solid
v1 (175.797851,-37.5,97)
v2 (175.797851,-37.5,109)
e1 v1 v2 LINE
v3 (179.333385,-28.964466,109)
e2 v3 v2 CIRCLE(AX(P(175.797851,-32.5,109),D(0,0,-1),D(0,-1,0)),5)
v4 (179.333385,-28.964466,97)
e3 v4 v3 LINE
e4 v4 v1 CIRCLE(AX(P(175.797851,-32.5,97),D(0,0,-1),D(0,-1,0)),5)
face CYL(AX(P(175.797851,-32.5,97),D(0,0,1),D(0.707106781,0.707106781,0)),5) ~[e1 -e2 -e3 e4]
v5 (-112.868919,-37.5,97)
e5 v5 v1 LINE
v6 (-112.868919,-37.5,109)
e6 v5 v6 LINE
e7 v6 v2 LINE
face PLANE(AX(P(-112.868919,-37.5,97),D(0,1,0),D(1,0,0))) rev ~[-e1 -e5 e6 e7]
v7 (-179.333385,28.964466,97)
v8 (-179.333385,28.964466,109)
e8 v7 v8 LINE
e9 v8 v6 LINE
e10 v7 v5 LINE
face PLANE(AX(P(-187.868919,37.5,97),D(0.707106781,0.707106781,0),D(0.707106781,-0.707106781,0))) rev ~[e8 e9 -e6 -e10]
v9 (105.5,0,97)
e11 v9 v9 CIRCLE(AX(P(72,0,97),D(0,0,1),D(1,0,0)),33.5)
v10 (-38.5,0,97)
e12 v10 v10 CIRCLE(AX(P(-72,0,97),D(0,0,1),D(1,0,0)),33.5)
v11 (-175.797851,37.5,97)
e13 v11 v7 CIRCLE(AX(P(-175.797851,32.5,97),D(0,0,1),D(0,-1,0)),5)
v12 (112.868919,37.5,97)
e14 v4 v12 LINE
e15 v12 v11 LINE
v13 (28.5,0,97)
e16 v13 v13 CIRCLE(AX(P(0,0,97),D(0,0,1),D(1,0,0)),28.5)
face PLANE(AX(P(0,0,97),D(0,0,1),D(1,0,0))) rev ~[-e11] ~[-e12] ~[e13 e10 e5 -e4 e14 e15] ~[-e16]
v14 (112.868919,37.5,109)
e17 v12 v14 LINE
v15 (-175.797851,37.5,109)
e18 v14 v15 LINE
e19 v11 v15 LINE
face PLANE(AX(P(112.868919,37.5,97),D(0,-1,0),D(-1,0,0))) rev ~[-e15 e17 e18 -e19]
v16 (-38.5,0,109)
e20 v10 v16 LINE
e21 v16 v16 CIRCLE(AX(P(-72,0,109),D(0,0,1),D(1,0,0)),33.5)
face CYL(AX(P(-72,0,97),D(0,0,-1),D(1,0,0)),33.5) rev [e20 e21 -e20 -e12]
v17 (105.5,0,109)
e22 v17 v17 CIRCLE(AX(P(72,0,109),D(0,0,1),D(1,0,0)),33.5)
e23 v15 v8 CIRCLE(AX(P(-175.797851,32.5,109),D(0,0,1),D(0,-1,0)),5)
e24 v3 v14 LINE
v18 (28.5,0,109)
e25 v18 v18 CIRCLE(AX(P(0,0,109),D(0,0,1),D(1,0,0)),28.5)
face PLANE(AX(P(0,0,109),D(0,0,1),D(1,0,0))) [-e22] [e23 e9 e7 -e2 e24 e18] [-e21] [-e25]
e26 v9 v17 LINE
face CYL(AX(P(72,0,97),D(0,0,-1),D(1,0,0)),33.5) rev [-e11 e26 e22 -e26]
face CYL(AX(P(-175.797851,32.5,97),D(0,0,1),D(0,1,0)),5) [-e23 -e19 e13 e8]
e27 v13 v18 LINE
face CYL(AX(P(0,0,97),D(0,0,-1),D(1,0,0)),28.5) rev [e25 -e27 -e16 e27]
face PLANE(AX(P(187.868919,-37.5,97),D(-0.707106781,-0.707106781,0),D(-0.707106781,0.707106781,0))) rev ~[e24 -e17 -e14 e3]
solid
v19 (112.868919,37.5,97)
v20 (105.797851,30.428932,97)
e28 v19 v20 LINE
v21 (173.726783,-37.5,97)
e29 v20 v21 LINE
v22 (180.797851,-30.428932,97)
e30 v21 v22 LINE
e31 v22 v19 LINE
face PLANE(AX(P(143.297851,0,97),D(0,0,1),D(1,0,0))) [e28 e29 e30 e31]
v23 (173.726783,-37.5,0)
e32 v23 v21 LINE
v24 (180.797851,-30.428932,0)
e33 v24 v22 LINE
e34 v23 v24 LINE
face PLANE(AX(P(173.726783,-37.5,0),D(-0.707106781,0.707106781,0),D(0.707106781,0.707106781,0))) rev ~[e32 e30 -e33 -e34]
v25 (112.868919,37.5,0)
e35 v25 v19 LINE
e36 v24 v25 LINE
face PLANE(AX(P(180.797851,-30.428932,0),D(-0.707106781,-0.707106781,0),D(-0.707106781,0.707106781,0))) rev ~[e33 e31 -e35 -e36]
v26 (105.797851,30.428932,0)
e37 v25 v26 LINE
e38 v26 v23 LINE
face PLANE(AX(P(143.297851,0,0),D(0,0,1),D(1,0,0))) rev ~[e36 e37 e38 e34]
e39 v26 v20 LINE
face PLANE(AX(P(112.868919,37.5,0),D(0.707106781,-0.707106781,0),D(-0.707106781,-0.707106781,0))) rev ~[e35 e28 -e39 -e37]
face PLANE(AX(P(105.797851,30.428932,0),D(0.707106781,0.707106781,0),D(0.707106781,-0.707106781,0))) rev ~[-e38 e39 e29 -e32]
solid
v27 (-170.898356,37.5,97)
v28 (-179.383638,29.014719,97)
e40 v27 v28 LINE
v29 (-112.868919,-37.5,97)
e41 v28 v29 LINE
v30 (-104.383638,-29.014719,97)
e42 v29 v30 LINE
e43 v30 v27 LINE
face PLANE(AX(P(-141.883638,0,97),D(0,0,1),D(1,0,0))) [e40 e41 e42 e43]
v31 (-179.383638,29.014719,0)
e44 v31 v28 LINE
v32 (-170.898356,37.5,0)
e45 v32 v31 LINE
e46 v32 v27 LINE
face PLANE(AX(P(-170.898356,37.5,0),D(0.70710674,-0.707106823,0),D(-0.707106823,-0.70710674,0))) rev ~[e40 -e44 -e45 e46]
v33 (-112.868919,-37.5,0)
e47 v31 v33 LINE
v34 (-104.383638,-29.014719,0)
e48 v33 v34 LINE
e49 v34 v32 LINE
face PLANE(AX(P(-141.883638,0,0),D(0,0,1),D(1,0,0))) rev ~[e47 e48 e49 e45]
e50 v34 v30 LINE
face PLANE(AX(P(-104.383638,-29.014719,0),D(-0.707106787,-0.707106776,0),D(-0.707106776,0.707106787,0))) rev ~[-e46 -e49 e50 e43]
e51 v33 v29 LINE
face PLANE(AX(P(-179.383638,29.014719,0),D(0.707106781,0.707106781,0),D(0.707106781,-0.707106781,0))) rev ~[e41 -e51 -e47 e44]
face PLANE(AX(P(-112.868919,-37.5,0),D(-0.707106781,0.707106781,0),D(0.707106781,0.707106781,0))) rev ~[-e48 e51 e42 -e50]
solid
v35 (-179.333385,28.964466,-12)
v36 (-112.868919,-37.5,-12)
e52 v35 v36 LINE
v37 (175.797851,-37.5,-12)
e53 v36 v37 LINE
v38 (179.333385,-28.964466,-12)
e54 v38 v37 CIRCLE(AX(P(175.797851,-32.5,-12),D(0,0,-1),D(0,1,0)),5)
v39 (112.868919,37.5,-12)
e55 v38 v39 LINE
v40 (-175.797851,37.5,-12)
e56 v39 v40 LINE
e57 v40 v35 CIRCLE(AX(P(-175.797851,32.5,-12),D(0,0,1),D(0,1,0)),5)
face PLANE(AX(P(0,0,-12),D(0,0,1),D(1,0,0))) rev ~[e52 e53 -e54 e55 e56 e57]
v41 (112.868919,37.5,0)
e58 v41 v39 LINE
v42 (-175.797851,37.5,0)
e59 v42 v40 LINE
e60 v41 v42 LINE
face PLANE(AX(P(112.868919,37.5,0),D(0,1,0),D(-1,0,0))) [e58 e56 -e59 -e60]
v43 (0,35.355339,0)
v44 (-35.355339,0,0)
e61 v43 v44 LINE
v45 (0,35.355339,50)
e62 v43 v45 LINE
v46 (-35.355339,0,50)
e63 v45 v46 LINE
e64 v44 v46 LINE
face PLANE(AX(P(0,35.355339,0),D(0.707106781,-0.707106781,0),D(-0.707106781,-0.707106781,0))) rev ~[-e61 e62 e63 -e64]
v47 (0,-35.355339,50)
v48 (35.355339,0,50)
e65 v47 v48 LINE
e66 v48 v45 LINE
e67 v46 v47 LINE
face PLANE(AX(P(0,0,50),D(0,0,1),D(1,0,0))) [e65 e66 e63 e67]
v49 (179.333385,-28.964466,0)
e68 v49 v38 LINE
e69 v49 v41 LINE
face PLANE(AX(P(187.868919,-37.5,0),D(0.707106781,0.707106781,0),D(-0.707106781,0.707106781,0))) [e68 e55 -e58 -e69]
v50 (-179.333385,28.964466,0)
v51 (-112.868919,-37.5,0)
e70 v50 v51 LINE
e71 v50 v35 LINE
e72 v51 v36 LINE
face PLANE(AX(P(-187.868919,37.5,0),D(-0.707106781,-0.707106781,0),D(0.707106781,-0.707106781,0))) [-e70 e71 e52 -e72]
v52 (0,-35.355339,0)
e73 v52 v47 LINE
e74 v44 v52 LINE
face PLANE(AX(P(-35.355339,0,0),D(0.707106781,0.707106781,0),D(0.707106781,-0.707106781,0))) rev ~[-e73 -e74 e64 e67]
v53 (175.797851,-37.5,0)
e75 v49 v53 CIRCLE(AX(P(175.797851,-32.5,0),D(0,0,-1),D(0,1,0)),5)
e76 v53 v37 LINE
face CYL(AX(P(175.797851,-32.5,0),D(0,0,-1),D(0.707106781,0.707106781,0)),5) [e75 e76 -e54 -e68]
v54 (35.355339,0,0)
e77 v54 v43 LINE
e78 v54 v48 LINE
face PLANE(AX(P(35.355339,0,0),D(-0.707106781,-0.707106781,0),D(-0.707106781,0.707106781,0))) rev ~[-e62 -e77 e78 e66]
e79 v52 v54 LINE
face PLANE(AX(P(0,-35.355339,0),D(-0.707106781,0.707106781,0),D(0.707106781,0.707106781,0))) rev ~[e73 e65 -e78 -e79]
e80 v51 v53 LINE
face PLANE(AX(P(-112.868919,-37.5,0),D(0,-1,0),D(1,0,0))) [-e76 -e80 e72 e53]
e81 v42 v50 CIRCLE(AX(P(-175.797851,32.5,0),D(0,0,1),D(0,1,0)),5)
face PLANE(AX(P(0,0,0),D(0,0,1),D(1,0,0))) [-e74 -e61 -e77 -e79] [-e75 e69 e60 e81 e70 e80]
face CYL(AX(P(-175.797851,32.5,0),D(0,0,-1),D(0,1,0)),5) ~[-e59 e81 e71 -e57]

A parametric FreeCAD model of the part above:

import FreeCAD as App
import Part
import Sketcher
from FreeCAD import Vector
Q = App.Units.Quantity


def edges_at(feature, points):
    """Names of the edges that pass closest to the given points."""
    edges = feature.Shape.Edges
    near = lambda p: min(range(len(edges)), key=lambda i: edges[i].distToShape(Part.Vertex(*p))[0])
    return sorted({f"Edge{near(p) + 1}" for p in points})


def add_polygon(sketch, points):
    """Adds a closed chain of lines whose ends are joined by coincident constraints."""
    first, n = sketch.GeometryCount, len(points)
    for a, b in zip(points, points[1:] + points[:1]):
        sketch.addGeometry(Part.LineSegment(App.Vector(*a, 0), App.Vector(*b, 0)), False)
    for i in range(n):
        sketch.addConstraint(Sketcher.Constraint("Coincident", first + i, 2, first + (i + 1) % n, 1))

doc = App.newDocument("Part")
body = doc.addObject("PartDesign::Body", "Body")

# Sketch on XY plane
sketch1 = body.newObject("Sketcher::SketchObject", "Sketch")
sketch1.AttachmentSupport = (doc.getObject("XY_Plane"), [""])
sketch1.MapMode = "FlatFace"
add_polygon(sketch1, [(188, -38), (113, 38), (-188, 38), (-113, -38)])  # lines 0-3
sketch1.addConstraint([
    Sketcher.Constraint("Horizontal", 1),
    Sketcher.Constraint("Horizontal", 3),
    Sketcher.Constraint("Symmetric", 0, 2, 2, 2, -1, 1),
    Sketcher.Constraint("Parallel", 0, 2),
    Sketcher.Constraint("Angle", 0, Q("135 deg")),
    Sketcher.Constraint("DistanceX", 1, 2, 2, 2, Q("75 mm")),
    Sketcher.Constraint("DistanceX", 1, 2, 1, 1, Q("300.737838 mm")),
])
pad1 = body.newObject("PartDesign::Pad", "Pad")
pad1.Profile = sketch1
pad1.Length = 12
pad1.Reversed = True

# Sketch on XY plane
sketch2 = body.newObject("Sketcher::SketchObject", "Sketch001")
sketch2.AttachmentSupport = (doc.getObject("XY_Plane"), [""])
sketch2.MapMode = "FlatFace"
add_polygon(sketch2, [(0, -35), (35, 0), (0, 35), (-35, 0)])  # lines 0-3
sketch2.addConstraint([
    Sketcher.Constraint("Symmetric", 0, 2, 2, 2, -1, 1),
    Sketcher.Constraint("Symmetric", 1, 2, 3, 2, -1, 1),
    Sketcher.Constraint("PointOnObject", 0, 2, -1),
    Sketcher.Constraint("PointOnObject", 1, 2, -2),
    Sketcher.Constraint("Perpendicular", 0, 1),
    Sketcher.Constraint("Distance", 0, Q("50 mm")),
])
pad2 = body.newObject("PartDesign::Pad", "Pad001")
pad2.Profile = sketch2
pad2.Length = 50
doc.recompute()

fillet = body.newObject("PartDesign::Fillet", "Fillet")
fillet.Base = (pad2, edges_at(pad2, [(-187.869, 37.5, -6), (187.869, -37.5, -6)]))
fillet.Radius = 5
body2 = doc.addObject("PartDesign::Body", "Body001")

# Sketch on XY plane
sketch3 = body2.newObject("Sketcher::SketchObject", "Sketch002")
sketch3.AttachmentSupport = (doc.getObject("XY_Plane001"), [""])
sketch3.MapMode = "FlatFace"
sketch3.AttachmentOffset = App.Placement(Vector(0, 0, 97), App.Rotation())
add_polygon(sketch3, [(188, -38), (113, 38), (-188, 38), (-113, -38)])  # lines 0-3
sketch3.addGeometry(Part.Circle(Vector(-72, 0, 0), Vector(0, 0, 1), 34), False)  # 4
sketch3.addGeometry(Part.Circle(Vector(0, 0, 0), Vector(0, 0, 1), 28), False)  # 5
sketch3.addGeometry(Part.Circle(Vector(72, 0, 0), Vector(0, 0, 1), 34), False)  # 6
sketch3.addConstraint([
    Sketcher.Constraint("Horizontal", 1),
    Sketcher.Constraint("Horizontal", 3),
    Sketcher.Constraint("Coincident", 5, 3, -1, 1),
    Sketcher.Constraint("Equal", 4, 6),
    Sketcher.Constraint("Symmetric", 4, 3, 6, 3, -1, 1),
    Sketcher.Constraint("Symmetric", 0, 2, 2, 2, -1, 1),
    Sketcher.Constraint("PointOnObject", 4, 3, -1),
    Sketcher.Constraint("Parallel", 0, 2),
    Sketcher.Constraint("Diameter", 4, Q("67 mm")),
    Sketcher.Constraint("Diameter", 5, Q("57 mm")),
    Sketcher.Constraint("Angle", 0, Q("135 deg")),
    Sketcher.Constraint("DistanceX", 4, 3, -1, 1, Q("72 mm")),
    Sketcher.Constraint("DistanceX", 1, 2, 2, 2, Q("75 mm")),
    Sketcher.Constraint("DistanceX", 1, 2, 1, 1, Q("300.737838 mm")),
])
pad3 = body2.newObject("PartDesign::Pad", "Pad002")
pad3.Profile = sketch3
pad3.Length = 12
doc.recompute()

fillet2 = body2.newObject("PartDesign::Fillet", "Fillet001")
fillet2.Base = (pad3, edges_at(pad3, [(-187.869, 37.5, 103), (187.869, -37.5, 103)]))
fillet2.Radius = 5
body3 = doc.addObject("PartDesign::Body", "Body002")
body3.AllowCompound = True

# Sketch on XY plane
sketch4 = body3.newObject("Sketcher::SketchObject", "Sketch003")
sketch4.AttachmentSupport = (doc.getObject("XY_Plane002"), [""])
sketch4.MapMode = "FlatFace"
add_polygon(sketch4, [(-179, 29), (-113, -38), (-104, -29), (-171, 38)])  # lines 0-3
add_polygon(sketch4, [(106, 30), (174, -38), (181, -30), (113, 38)])  # lines 4-7
sketch4.addConstraint([
    Sketcher.Constraint("Symmetric", 0, 2, 6, 2, -1, 1),
    Sketcher.Constraint("Perpendicular", 0, 1),
    Sketcher.Constraint("Perpendicular", 1, 2),
    Sketcher.Constraint("Perpendicular", 2, 3),
    Sketcher.Constraint("Perpendicular", 3, 4),
    Sketcher.Constraint("Perpendicular", 4, 5),
    Sketcher.Constraint("Perpendicular", 5, 6),
    Sketcher.Constraint("Perpendicular", 6, 7),
    Sketcher.Constraint("Horizontal", 0, 2, 4, 2),
    Sketcher.Constraint("Horizontal", 2, 2, 6, 2),
    Sketcher.Constraint("Angle", 0, Q("-45 deg")),
    Sketcher.Constraint("Distance", 1, Q("11.999999 mm")),
    Sketcher.Constraint("Distance", 5, Q("10 mm")),
    Sketcher.Constraint("DistanceY", 0, 2, 2, 2, Q("75 mm")),
    Sketcher.Constraint("DistanceX", 0, 2, 4, 2, Q("286.595702 mm")),
])
pad4 = body3.newObject("PartDesign::Pad", "Pad003")
pad4.Profile = sketch4
pad4.Length = 97

doc.recompute()
